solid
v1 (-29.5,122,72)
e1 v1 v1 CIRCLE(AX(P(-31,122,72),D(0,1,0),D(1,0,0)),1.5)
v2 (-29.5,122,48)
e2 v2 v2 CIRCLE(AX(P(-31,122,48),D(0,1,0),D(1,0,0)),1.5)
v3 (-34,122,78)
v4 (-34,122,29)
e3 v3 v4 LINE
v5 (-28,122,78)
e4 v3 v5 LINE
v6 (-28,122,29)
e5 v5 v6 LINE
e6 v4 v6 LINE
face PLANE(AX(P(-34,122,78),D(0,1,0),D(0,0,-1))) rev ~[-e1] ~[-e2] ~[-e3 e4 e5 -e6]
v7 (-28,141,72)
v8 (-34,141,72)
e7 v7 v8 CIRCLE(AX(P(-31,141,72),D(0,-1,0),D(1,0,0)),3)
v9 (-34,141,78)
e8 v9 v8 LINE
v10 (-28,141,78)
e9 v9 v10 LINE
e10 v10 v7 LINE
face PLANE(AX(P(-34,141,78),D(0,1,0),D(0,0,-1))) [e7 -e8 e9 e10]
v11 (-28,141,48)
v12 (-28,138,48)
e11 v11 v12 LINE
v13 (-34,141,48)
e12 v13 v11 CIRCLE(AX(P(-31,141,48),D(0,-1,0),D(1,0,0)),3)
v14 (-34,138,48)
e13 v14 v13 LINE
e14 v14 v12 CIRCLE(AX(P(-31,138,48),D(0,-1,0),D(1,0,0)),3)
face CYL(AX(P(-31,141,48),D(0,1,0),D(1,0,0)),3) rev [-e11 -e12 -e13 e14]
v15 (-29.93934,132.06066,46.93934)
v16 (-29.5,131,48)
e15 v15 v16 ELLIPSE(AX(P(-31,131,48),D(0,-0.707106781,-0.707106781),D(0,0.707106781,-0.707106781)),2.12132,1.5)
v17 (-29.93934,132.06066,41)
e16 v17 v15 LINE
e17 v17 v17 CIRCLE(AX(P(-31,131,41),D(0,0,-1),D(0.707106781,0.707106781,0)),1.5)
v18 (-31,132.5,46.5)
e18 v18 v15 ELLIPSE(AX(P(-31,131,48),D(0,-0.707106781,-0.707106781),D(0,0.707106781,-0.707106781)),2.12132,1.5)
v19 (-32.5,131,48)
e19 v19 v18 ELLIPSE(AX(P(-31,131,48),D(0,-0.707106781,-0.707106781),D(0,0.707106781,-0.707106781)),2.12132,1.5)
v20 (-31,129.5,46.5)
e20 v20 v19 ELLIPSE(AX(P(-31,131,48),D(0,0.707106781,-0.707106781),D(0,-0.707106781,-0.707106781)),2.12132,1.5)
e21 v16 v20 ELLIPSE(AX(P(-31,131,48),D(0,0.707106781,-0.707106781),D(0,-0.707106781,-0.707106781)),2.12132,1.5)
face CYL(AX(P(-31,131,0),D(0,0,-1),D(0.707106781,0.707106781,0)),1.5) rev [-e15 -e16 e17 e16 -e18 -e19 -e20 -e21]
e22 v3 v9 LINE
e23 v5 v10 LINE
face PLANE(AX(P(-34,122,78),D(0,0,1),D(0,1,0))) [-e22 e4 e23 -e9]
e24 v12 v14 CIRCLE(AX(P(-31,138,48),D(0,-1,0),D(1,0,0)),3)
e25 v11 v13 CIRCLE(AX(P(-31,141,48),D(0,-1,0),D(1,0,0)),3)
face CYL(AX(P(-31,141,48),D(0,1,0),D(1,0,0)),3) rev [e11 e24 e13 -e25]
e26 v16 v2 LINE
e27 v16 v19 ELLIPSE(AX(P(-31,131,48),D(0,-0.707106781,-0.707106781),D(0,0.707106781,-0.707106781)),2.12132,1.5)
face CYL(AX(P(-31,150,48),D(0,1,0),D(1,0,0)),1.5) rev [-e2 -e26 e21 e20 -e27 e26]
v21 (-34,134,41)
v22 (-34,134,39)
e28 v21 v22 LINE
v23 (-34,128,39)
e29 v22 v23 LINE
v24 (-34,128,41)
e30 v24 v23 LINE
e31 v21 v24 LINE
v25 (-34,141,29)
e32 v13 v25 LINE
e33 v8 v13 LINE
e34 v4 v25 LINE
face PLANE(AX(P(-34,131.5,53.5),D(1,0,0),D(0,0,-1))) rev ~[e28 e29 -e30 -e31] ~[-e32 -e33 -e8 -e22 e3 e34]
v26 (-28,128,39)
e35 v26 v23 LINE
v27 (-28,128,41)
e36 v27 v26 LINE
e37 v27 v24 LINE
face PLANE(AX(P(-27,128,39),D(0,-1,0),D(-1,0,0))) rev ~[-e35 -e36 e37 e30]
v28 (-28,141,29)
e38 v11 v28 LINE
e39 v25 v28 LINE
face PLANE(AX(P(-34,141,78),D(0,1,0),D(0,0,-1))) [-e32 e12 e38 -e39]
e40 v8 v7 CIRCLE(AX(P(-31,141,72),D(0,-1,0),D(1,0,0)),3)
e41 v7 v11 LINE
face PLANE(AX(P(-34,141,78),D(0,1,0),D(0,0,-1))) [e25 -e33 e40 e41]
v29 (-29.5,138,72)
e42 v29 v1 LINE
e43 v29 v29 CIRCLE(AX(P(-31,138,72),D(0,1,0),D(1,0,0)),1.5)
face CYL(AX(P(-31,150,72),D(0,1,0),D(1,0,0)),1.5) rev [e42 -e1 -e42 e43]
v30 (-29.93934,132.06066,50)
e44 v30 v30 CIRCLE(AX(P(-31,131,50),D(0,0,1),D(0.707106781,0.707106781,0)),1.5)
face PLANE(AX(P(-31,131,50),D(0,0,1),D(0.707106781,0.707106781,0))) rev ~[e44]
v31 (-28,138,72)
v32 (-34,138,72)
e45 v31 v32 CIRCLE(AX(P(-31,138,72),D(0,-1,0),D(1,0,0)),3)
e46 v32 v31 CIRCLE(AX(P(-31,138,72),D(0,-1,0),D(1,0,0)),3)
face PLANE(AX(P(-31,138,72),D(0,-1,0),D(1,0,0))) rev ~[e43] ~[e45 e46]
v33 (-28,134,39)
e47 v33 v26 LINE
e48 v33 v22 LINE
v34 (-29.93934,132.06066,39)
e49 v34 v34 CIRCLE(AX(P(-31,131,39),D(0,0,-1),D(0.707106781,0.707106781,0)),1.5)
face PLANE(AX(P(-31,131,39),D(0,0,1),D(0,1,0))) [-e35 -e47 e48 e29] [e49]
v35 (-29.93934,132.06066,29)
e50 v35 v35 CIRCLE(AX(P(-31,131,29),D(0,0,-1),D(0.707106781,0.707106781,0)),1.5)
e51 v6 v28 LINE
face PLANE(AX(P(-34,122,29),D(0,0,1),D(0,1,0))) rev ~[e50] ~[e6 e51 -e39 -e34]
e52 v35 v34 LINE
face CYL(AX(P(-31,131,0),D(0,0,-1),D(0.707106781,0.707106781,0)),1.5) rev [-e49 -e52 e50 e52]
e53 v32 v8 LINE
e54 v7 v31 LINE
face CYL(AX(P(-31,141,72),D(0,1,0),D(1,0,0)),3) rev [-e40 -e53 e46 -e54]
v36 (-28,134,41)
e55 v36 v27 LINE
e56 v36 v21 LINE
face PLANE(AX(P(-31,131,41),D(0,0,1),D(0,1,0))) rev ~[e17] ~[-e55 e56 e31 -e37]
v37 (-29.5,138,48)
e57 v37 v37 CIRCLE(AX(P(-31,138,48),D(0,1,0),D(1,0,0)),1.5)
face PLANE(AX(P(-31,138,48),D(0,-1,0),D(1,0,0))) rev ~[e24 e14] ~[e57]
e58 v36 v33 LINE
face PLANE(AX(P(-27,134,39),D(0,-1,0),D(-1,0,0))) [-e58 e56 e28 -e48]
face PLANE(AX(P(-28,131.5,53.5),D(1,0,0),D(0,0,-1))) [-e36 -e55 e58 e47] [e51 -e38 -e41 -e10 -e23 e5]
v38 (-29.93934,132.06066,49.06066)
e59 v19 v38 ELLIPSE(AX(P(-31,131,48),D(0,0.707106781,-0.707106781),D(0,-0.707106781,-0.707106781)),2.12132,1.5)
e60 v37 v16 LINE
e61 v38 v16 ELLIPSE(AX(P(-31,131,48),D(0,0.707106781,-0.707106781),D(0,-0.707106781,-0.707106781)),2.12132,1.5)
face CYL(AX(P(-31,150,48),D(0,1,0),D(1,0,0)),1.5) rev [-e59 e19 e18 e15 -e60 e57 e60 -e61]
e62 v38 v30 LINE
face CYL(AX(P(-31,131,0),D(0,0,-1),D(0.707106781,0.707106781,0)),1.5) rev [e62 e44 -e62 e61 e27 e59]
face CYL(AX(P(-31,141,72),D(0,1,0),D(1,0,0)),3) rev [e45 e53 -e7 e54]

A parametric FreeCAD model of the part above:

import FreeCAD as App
import Part
import Sketcher


def add_polygon(sketch, points):
    """Adds a closed chain of lines whose ends are joined by coincident constraints."""
    first, n = sketch.GeometryCount, len(points)
    for a, b in zip(points, points[1:] + points[:1]):
        sketch.addGeometry(Part.LineSegment(App.Vector(*a, 0), App.Vector(*b, 0)), False)
    for i in range(n):
        sketch.addConstraint(Sketcher.Constraint("Coincident", first + i, 2, first + (i + 1) % n, 1))

doc = App.newDocument("Part")
params = doc.addObject("Spreadsheet::Sheet", "Params")
for row, (alias, value) in enumerate([
    ("sketch1_diameter", "6 mm"),
    ("pad1_length", "3 mm"),
    ("sketch2_diameter", "6 mm"),
    ("pad2_length", "3 mm"),
    ("sketch3_diameter", "6 mm"),
    ("pad3_length", "3 mm"),
    ("sketch4_diameter", "6 mm"),
    ("pad4_length", "3 mm"),
    ("sketch5_diameter", "3 mm"),
    ("pad5_length", "50 mm"),
    ("sketch6_diameter", "3 mm"),
    ("pad6_length", "50 mm"),
    ("sketch7_diameter", "3 mm"),
    ("pad7_length", "50 mm"),
    ("sketch8_diameter", "3 mm"),
    ("pad8_length", "50 mm"),
    ("sketch9_diameter", "3 mm"),
    ("pad9_length", "50 mm"),
    ("sketch10_width", "8 mm"),
    ("sketch10_height", "6 mm"),
    ("pad10_length", "2 mm"),
    ("sketch11_width", "19 mm"),
    ("sketch11_height", "49 mm"),
    ("pad11_length", "6 mm"),
], start=1):
    params.set(f"A{row}", alias)
    params.set(f"B{row}", "=" + value)
    params.setAlias(f"B{row}", alias)

body = doc.addObject("PartDesign::Body", "Body")

# Sketch on XZ plane
sketch1 = body.newObject("Sketcher::SketchObject", "Sketch")
sketch1.AttachmentSupport = (doc.getObject("XZ_Plane"), [""])
sketch1.MapMode = "FlatFace"
sketch1.AttachmentOffset = App.Placement(App.Vector(0, 0, -150), App.Rotation())
sketch1.addGeometry(Part.Circle(App.Vector(-31, 72, 0), App.Vector(0, 0, 1), 3), False)
sketch1.addConstraint([
    Sketcher.Constraint("Diameter", 0, 6.0),
    Sketcher.Constraint("DistanceX", 0, 3, -1, 1, 31.0),
    Sketcher.Constraint("DistanceY", -1, 1, 0, 3, 72.0),
])
sketch1.setExpression("Constraints[0]", "Params.sketch1_diameter")
pad1 = body.newObject("PartDesign::Pad", "Pad")
pad1.Profile = sketch1
pad1.setExpression("Length", "Params.pad1_length")
body2 = doc.addObject("PartDesign::Body", "Body001")

# Sketch on XZ plane
sketch2 = body2.newObject("Sketcher::SketchObject", "Sketch001")
sketch2.AttachmentSupport = (doc.getObject("XZ_Plane001"), [""])
sketch2.MapMode = "FlatFace"
sketch2.AttachmentOffset = App.Placement(App.Vector(0, 0, -150), App.Rotation())
sketch2.addGeometry(Part.Circle(App.Vector(31, 48, 0), App.Vector(0, 0, 1), 3), False)
sketch2.addConstraint([
    Sketcher.Constraint("Diameter", 0, 6.0),
    Sketcher.Constraint("DistanceX", -1, 1, 0, 3, 31.0),
    Sketcher.Constraint("DistanceY", -1, 1, 0, 3, 48.0),
])
sketch2.setExpression("Constraints[0]", "Params.sketch2_diameter")
pad2 = body2.newObject("PartDesign::Pad", "Pad001")
pad2.Profile = sketch2
pad2.setExpression("Length", "Params.pad2_length")
body3 = doc.addObject("PartDesign::Body", "Body002")

# Sketch on XZ plane
sketch3 = body3.newObject("Sketcher::SketchObject", "Sketch002")
sketch3.AttachmentSupport = (doc.getObject("XZ_Plane002"), [""])
sketch3.MapMode = "FlatFace"
sketch3.AttachmentOffset = App.Placement(App.Vector(0, 0, -150), App.Rotation())
sketch3.addGeometry(Part.Circle(App.Vector(31, 72, 0), App.Vector(0, 0, 1), 3), False)
sketch3.addConstraint([
    Sketcher.Constraint("Diameter", 0, 6.0),
    Sketcher.Constraint("DistanceX", -1, 1, 0, 3, 31.0),
    Sketcher.Constraint("DistanceY", -1, 1, 0, 3, 72.0),
])
sketch3.setExpression("Constraints[0]", "Params.sketch3_diameter")
pad3 = body3.newObject("PartDesign::Pad", "Pad002")
pad3.Profile = sketch3
pad3.setExpression("Length", "Params.pad3_length")
body4 = doc.addObject("PartDesign::Body", "Body003")
body4.AllowCompound = True

# Sketch on XZ plane
sketch4 = body4.newObject("Sketcher::SketchObject", "Sketch003")
sketch4.AttachmentSupport = (doc.getObject("XZ_Plane003"), [""])
sketch4.MapMode = "FlatFace"
sketch4.AttachmentOffset = App.Placement(App.Vector(0, 0, -150), App.Rotation())
sketch4.addGeometry(Part.Circle(App.Vector(-31, 48, 0), App.Vector(0, 0, 1), 3), False)
sketch4.addConstraint([
    Sketcher.Constraint("Diameter", 0, 6.0),
    Sketcher.Constraint("DistanceX", 0, 3, -1, 1, 31.0),
    Sketcher.Constraint("DistanceY", -1, 1, 0, 3, 48.0),
])
sketch4.setExpression("Constraints[0]", "Params.sketch4_diameter")
pad4 = body4.newObject("PartDesign::Pad", "Pad003")
pad4.Profile = sketch4
pad4.setExpression("Length", "Params.pad4_length")
doc.recompute()

boolean = body4.newObject("PartDesign::Boolean", "Boolean")
boolean.Type = "Fuse"
boolean.addObjects([body])
doc.recompute()

boolean2 = body4.newObject("PartDesign::Boolean", "Boolean001")
boolean2.Type = "Fuse"
boolean2.addObjects([body2])
doc.recompute()

boolean3 = body4.newObject("PartDesign::Boolean", "Boolean002")
boolean3.Type = "Fuse"
boolean3.addObjects([body3])
body5 = doc.addObject("PartDesign::Body", "Body004")
body5.AllowCompound = True
doc.recompute()

body4.Placement = App.Placement(App.Vector(0, -9, 0), App.Rotation(App.Vector(0, 0, 1), 0))
boolean4 = body5.newObject("PartDesign::Boolean", "Boolean003")
boolean4.Type = "Fuse"
boolean4.addObjects([body4])
body6 = doc.addObject("PartDesign::Body", "Body005")

# Sketch on XZ plane
sketch5 = body6.newObject("Sketcher::SketchObject", "Sketch004")
sketch5.AttachmentSupport = (doc.getObject("XZ_Plane005"), [""])
sketch5.MapMode = "FlatFace"
sketch5.AttachmentOffset = App.Placement(App.Vector(0, 0, -150), App.Rotation())
sketch5.addGeometry(Part.Circle(App.Vector(-31, 72, 0), App.Vector(0, 0, 1), 1.5), False)
sketch5.addConstraint([
    Sketcher.Constraint("Diameter", 0, 3.0),
    Sketcher.Constraint("DistanceX", 0, 3, -1, 1, 31.0),
    Sketcher.Constraint("DistanceY", -1, 1, 0, 3, 72.0),
])
sketch5.setExpression("Constraints[0]", "Params.sketch5_diameter")
pad5 = body6.newObject("PartDesign::Pad", "Pad004")
pad5.Profile = sketch5
pad5.setExpression("Length", "Params.pad5_length")
body7 = doc.addObject("PartDesign::Body", "Body006")

# Sketch on XZ plane
sketch6 = body7.newObject("Sketcher::SketchObject", "Sketch005")
sketch6.AttachmentSupport = (doc.getObject("XZ_Plane006"), [""])
sketch6.MapMode = "FlatFace"
sketch6.AttachmentOffset = App.Placement(App.Vector(0, 0, -150), App.Rotation())
sketch6.addGeometry(Part.Circle(App.Vector(31, 48, 0), App.Vector(0, 0, 1), 1.5), False)
sketch6.addConstraint([
    Sketcher.Constraint("Diameter", 0, 3.0),
    Sketcher.Constraint("DistanceX", -1, 1, 0, 3, 31.0),
    Sketcher.Constraint("DistanceY", -1, 1, 0, 3, 48.0),
])
sketch6.setExpression("Constraints[0]", "Params.sketch6_diameter")
pad6 = body7.newObject("PartDesign::Pad", "Pad005")
pad6.Profile = sketch6
pad6.setExpression("Length", "Params.pad6_length")
body8 = doc.addObject("PartDesign::Body", "Body007")

# Sketch on XZ plane
sketch7 = body8.newObject("Sketcher::SketchObject", "Sketch006")
sketch7.AttachmentSupport = (doc.getObject("XZ_Plane007"), [""])
sketch7.MapMode = "FlatFace"
sketch7.AttachmentOffset = App.Placement(App.Vector(0, 0, -150), App.Rotation())
sketch7.addGeometry(Part.Circle(App.Vector(31, 72, 0), App.Vector(0, 0, 1), 1.5), False)
sketch7.addConstraint([
    Sketcher.Constraint("Diameter", 0, 3.0),
    Sketcher.Constraint("DistanceX", -1, 1, 0, 3, 31.0),
    Sketcher.Constraint("DistanceY", -1, 1, 0, 3, 72.0),
])
sketch7.setExpression("Constraints[0]", "Params.sketch7_diameter")
pad7 = body8.newObject("PartDesign::Pad", "Pad006")
pad7.Profile = sketch7
pad7.setExpression("Length", "Params.pad7_length")
body9 = doc.addObject("PartDesign::Body", "Body008")
body9.AllowCompound = True

# Sketch on XZ plane
sketch8 = body9.newObject("Sketcher::SketchObject", "Sketch007")
sketch8.AttachmentSupport = (doc.getObject("XZ_Plane008"), [""])
sketch8.MapMode = "FlatFace"
sketch8.AttachmentOffset = App.Placement(App.Vector(0, 0, -150), App.Rotation())
sketch8.addGeometry(Part.Circle(App.Vector(-31, 48, 0), App.Vector(0, 0, 1), 1.5), False)
sketch8.addConstraint([
    Sketcher.Constraint("Diameter", 0, 3.0),
    Sketcher.Constraint("DistanceX", 0, 3, -1, 1, 31.0),
    Sketcher.Constraint("DistanceY", -1, 1, 0, 3, 48.0),
])
sketch8.setExpression("Constraints[0]", "Params.sketch8_diameter")
pad8 = body9.newObject("PartDesign::Pad", "Pad007")
pad8.Profile = sketch8
pad8.setExpression("Length", "Params.pad8_length")
doc.recompute()

boolean5 = body9.newObject("PartDesign::Boolean", "Boolean004")
boolean5.Type = "Fuse"
boolean5.addObjects([body6])
doc.recompute()

boolean6 = body9.newObject("PartDesign::Boolean", "Boolean005")
boolean6.Type = "Fuse"
boolean6.addObjects([body7])
doc.recompute()

boolean7 = body9.newObject("PartDesign::Boolean", "Boolean006")
boolean7.Type = "Fuse"
boolean7.addObjects([body8])
body10 = doc.addObject("PartDesign::Body", "Body009")

# Sketch on XY plane
sketch9 = body10.newObject("Sketcher::SketchObject", "Sketch008")
sketch9.AttachmentSupport = (doc.getObject("XY_Plane009"), [""])
sketch9.MapMode = "FlatFace"
sketch9.addGeometry(Part.Circle(App.Vector(0, 0, 0), App.Vector(0, 0, 1), 1.5), False)
sketch9.addConstraint([
    Sketcher.Constraint("Coincident", 0, 3, -1, 1),
    Sketcher.Constraint("Diameter", 0, 3.0),
])
sketch9.setExpression("Constraints[1]", "Params.sketch9_diameter")
pad9 = body10.newObject("PartDesign::Pad", "Pad008")
pad9.Profile = sketch9
pad9.setExpression("Length", "Params.pad9_length")
body11 = doc.addObject("PartDesign::Body", "Body010")
doc.recompute()

body10.Placement = App.Placement(App.Vector(-31, 92, 0), App.Rotation(App.Vector(0, 0, 1), 45))
boolean8 = body11.newObject("PartDesign::Boolean", "Boolean007")
boolean8.Type = "Fuse"
boolean8.addObjects([body10])
body12 = doc.addObject("PartDesign::Body", "Body011")

# Sketch on XY plane
sketch10 = body12.newObject("Sketcher::SketchObject", "Sketch009")
sketch10.AttachmentSupport = (doc.getObject("XY_Plane011"), [""])
sketch10.MapMode = "FlatFace"
sketch10.AttachmentOffset = App.Placement(App.Vector(0, 0, 39), App.Rotation())
add_polygon(sketch10, [(-35, 89), (-27, 89), (-27, 95), (-35, 95)])  # lines 0-3
sketch10.addConstraint([
    Sketcher.Constraint("Horizontal", 0),
    Sketcher.Constraint("Vertical", 1),
    Sketcher.Constraint("Horizontal", 2),
    Sketcher.Constraint("Vertical", 3),
    Sketcher.Constraint("DistanceX", 0, 1, 0, 2, 8.0),
    Sketcher.Constraint("DistanceY", 1, 1, 1, 2, 6.0),
    Sketcher.Constraint("DistanceX", 0, 2, -1, 1, 27.0),
    Sketcher.Constraint("DistanceY", -1, 1, 0, 2, 89.0),
])
sketch10.setExpression("Constraints[8]", "Params.sketch10_width")
sketch10.setExpression("Constraints[9]", "Params.sketch10_height")
pad10 = body12.newObject("PartDesign::Pad", "Pad009")
pad10.Profile = sketch10
pad10.setExpression("Length", "Params.pad10_length")
body13 = doc.addObject("PartDesign::Body", "Body012")

# Sketch on YZ plane
sketch11 = body13.newObject("Sketcher::SketchObject", "Sketch010")
sketch11.AttachmentSupport = (doc.getObject("YZ_Plane012"), [""])
sketch11.MapMode = "FlatFace"
sketch11.AttachmentOffset = App.Placement(App.Vector(0, 0, -34), App.Rotation())
add_polygon(sketch11, [(102, 78), (83, 78), (83, 29), (102, 29)])  # lines 0-3
sketch11.addConstraint([
    Sketcher.Constraint("Horizontal", 0),
    Sketcher.Constraint("Vertical", 1),
    Sketcher.Constraint("Horizontal", 2),
    Sketcher.Constraint("Vertical", 3),
    Sketcher.Constraint("DistanceX", 0, 2, 0, 1, 19.0),
    Sketcher.Constraint("DistanceY", 1, 2, 1, 1, 49.0),
    Sketcher.Constraint("DistanceX", -1, 1, 0, 2, 83.0),
    Sketcher.Constraint("DistanceY", -1, 1, 0, 2, 78.0),
])
sketch11.setExpression("Constraints[8]", "Params.sketch11_width")
sketch11.setExpression("Constraints[9]", "Params.sketch11_height")
pad11 = body13.newObject("PartDesign::Pad", "Pad010")
pad11.Profile = sketch11
pad11.setExpression("Length", "Params.pad11_length")
doc.recompute()

boolean9 = body13.newObject("PartDesign::Boolean", "Boolean008")
boolean9.Type = "Cut"
boolean9.addObjects([body12])
doc.recompute()

boolean10 = body13.newObject("PartDesign::Boolean", "Boolean009")
boolean10.Type = "Cut"
boolean10.addObjects([body11])
body14 = doc.addObject("PartDesign::Body", "Body013")
doc.recompute()

body13.Placement = App.Placement(App.Vector(0, 39, 0), App.Rotation(App.Vector(0, 0, 1), 0))
boolean11 = body14.newObject("PartDesign::Boolean", "Boolean010")
boolean11.Type = "Fuse"
boolean11.addObjects([body13])
doc.recompute()

boolean12 = body14.newObject("PartDesign::Boolean", "Boolean011")
boolean12.Type = "Cut"
boolean12.addObjects([body9])
doc.recompute()

boolean13 = body14.newObject("PartDesign::Boolean", "Boolean012")
boolean13.Type = "Cut"
boolean13.addObjects([body5])

doc.recompute()
